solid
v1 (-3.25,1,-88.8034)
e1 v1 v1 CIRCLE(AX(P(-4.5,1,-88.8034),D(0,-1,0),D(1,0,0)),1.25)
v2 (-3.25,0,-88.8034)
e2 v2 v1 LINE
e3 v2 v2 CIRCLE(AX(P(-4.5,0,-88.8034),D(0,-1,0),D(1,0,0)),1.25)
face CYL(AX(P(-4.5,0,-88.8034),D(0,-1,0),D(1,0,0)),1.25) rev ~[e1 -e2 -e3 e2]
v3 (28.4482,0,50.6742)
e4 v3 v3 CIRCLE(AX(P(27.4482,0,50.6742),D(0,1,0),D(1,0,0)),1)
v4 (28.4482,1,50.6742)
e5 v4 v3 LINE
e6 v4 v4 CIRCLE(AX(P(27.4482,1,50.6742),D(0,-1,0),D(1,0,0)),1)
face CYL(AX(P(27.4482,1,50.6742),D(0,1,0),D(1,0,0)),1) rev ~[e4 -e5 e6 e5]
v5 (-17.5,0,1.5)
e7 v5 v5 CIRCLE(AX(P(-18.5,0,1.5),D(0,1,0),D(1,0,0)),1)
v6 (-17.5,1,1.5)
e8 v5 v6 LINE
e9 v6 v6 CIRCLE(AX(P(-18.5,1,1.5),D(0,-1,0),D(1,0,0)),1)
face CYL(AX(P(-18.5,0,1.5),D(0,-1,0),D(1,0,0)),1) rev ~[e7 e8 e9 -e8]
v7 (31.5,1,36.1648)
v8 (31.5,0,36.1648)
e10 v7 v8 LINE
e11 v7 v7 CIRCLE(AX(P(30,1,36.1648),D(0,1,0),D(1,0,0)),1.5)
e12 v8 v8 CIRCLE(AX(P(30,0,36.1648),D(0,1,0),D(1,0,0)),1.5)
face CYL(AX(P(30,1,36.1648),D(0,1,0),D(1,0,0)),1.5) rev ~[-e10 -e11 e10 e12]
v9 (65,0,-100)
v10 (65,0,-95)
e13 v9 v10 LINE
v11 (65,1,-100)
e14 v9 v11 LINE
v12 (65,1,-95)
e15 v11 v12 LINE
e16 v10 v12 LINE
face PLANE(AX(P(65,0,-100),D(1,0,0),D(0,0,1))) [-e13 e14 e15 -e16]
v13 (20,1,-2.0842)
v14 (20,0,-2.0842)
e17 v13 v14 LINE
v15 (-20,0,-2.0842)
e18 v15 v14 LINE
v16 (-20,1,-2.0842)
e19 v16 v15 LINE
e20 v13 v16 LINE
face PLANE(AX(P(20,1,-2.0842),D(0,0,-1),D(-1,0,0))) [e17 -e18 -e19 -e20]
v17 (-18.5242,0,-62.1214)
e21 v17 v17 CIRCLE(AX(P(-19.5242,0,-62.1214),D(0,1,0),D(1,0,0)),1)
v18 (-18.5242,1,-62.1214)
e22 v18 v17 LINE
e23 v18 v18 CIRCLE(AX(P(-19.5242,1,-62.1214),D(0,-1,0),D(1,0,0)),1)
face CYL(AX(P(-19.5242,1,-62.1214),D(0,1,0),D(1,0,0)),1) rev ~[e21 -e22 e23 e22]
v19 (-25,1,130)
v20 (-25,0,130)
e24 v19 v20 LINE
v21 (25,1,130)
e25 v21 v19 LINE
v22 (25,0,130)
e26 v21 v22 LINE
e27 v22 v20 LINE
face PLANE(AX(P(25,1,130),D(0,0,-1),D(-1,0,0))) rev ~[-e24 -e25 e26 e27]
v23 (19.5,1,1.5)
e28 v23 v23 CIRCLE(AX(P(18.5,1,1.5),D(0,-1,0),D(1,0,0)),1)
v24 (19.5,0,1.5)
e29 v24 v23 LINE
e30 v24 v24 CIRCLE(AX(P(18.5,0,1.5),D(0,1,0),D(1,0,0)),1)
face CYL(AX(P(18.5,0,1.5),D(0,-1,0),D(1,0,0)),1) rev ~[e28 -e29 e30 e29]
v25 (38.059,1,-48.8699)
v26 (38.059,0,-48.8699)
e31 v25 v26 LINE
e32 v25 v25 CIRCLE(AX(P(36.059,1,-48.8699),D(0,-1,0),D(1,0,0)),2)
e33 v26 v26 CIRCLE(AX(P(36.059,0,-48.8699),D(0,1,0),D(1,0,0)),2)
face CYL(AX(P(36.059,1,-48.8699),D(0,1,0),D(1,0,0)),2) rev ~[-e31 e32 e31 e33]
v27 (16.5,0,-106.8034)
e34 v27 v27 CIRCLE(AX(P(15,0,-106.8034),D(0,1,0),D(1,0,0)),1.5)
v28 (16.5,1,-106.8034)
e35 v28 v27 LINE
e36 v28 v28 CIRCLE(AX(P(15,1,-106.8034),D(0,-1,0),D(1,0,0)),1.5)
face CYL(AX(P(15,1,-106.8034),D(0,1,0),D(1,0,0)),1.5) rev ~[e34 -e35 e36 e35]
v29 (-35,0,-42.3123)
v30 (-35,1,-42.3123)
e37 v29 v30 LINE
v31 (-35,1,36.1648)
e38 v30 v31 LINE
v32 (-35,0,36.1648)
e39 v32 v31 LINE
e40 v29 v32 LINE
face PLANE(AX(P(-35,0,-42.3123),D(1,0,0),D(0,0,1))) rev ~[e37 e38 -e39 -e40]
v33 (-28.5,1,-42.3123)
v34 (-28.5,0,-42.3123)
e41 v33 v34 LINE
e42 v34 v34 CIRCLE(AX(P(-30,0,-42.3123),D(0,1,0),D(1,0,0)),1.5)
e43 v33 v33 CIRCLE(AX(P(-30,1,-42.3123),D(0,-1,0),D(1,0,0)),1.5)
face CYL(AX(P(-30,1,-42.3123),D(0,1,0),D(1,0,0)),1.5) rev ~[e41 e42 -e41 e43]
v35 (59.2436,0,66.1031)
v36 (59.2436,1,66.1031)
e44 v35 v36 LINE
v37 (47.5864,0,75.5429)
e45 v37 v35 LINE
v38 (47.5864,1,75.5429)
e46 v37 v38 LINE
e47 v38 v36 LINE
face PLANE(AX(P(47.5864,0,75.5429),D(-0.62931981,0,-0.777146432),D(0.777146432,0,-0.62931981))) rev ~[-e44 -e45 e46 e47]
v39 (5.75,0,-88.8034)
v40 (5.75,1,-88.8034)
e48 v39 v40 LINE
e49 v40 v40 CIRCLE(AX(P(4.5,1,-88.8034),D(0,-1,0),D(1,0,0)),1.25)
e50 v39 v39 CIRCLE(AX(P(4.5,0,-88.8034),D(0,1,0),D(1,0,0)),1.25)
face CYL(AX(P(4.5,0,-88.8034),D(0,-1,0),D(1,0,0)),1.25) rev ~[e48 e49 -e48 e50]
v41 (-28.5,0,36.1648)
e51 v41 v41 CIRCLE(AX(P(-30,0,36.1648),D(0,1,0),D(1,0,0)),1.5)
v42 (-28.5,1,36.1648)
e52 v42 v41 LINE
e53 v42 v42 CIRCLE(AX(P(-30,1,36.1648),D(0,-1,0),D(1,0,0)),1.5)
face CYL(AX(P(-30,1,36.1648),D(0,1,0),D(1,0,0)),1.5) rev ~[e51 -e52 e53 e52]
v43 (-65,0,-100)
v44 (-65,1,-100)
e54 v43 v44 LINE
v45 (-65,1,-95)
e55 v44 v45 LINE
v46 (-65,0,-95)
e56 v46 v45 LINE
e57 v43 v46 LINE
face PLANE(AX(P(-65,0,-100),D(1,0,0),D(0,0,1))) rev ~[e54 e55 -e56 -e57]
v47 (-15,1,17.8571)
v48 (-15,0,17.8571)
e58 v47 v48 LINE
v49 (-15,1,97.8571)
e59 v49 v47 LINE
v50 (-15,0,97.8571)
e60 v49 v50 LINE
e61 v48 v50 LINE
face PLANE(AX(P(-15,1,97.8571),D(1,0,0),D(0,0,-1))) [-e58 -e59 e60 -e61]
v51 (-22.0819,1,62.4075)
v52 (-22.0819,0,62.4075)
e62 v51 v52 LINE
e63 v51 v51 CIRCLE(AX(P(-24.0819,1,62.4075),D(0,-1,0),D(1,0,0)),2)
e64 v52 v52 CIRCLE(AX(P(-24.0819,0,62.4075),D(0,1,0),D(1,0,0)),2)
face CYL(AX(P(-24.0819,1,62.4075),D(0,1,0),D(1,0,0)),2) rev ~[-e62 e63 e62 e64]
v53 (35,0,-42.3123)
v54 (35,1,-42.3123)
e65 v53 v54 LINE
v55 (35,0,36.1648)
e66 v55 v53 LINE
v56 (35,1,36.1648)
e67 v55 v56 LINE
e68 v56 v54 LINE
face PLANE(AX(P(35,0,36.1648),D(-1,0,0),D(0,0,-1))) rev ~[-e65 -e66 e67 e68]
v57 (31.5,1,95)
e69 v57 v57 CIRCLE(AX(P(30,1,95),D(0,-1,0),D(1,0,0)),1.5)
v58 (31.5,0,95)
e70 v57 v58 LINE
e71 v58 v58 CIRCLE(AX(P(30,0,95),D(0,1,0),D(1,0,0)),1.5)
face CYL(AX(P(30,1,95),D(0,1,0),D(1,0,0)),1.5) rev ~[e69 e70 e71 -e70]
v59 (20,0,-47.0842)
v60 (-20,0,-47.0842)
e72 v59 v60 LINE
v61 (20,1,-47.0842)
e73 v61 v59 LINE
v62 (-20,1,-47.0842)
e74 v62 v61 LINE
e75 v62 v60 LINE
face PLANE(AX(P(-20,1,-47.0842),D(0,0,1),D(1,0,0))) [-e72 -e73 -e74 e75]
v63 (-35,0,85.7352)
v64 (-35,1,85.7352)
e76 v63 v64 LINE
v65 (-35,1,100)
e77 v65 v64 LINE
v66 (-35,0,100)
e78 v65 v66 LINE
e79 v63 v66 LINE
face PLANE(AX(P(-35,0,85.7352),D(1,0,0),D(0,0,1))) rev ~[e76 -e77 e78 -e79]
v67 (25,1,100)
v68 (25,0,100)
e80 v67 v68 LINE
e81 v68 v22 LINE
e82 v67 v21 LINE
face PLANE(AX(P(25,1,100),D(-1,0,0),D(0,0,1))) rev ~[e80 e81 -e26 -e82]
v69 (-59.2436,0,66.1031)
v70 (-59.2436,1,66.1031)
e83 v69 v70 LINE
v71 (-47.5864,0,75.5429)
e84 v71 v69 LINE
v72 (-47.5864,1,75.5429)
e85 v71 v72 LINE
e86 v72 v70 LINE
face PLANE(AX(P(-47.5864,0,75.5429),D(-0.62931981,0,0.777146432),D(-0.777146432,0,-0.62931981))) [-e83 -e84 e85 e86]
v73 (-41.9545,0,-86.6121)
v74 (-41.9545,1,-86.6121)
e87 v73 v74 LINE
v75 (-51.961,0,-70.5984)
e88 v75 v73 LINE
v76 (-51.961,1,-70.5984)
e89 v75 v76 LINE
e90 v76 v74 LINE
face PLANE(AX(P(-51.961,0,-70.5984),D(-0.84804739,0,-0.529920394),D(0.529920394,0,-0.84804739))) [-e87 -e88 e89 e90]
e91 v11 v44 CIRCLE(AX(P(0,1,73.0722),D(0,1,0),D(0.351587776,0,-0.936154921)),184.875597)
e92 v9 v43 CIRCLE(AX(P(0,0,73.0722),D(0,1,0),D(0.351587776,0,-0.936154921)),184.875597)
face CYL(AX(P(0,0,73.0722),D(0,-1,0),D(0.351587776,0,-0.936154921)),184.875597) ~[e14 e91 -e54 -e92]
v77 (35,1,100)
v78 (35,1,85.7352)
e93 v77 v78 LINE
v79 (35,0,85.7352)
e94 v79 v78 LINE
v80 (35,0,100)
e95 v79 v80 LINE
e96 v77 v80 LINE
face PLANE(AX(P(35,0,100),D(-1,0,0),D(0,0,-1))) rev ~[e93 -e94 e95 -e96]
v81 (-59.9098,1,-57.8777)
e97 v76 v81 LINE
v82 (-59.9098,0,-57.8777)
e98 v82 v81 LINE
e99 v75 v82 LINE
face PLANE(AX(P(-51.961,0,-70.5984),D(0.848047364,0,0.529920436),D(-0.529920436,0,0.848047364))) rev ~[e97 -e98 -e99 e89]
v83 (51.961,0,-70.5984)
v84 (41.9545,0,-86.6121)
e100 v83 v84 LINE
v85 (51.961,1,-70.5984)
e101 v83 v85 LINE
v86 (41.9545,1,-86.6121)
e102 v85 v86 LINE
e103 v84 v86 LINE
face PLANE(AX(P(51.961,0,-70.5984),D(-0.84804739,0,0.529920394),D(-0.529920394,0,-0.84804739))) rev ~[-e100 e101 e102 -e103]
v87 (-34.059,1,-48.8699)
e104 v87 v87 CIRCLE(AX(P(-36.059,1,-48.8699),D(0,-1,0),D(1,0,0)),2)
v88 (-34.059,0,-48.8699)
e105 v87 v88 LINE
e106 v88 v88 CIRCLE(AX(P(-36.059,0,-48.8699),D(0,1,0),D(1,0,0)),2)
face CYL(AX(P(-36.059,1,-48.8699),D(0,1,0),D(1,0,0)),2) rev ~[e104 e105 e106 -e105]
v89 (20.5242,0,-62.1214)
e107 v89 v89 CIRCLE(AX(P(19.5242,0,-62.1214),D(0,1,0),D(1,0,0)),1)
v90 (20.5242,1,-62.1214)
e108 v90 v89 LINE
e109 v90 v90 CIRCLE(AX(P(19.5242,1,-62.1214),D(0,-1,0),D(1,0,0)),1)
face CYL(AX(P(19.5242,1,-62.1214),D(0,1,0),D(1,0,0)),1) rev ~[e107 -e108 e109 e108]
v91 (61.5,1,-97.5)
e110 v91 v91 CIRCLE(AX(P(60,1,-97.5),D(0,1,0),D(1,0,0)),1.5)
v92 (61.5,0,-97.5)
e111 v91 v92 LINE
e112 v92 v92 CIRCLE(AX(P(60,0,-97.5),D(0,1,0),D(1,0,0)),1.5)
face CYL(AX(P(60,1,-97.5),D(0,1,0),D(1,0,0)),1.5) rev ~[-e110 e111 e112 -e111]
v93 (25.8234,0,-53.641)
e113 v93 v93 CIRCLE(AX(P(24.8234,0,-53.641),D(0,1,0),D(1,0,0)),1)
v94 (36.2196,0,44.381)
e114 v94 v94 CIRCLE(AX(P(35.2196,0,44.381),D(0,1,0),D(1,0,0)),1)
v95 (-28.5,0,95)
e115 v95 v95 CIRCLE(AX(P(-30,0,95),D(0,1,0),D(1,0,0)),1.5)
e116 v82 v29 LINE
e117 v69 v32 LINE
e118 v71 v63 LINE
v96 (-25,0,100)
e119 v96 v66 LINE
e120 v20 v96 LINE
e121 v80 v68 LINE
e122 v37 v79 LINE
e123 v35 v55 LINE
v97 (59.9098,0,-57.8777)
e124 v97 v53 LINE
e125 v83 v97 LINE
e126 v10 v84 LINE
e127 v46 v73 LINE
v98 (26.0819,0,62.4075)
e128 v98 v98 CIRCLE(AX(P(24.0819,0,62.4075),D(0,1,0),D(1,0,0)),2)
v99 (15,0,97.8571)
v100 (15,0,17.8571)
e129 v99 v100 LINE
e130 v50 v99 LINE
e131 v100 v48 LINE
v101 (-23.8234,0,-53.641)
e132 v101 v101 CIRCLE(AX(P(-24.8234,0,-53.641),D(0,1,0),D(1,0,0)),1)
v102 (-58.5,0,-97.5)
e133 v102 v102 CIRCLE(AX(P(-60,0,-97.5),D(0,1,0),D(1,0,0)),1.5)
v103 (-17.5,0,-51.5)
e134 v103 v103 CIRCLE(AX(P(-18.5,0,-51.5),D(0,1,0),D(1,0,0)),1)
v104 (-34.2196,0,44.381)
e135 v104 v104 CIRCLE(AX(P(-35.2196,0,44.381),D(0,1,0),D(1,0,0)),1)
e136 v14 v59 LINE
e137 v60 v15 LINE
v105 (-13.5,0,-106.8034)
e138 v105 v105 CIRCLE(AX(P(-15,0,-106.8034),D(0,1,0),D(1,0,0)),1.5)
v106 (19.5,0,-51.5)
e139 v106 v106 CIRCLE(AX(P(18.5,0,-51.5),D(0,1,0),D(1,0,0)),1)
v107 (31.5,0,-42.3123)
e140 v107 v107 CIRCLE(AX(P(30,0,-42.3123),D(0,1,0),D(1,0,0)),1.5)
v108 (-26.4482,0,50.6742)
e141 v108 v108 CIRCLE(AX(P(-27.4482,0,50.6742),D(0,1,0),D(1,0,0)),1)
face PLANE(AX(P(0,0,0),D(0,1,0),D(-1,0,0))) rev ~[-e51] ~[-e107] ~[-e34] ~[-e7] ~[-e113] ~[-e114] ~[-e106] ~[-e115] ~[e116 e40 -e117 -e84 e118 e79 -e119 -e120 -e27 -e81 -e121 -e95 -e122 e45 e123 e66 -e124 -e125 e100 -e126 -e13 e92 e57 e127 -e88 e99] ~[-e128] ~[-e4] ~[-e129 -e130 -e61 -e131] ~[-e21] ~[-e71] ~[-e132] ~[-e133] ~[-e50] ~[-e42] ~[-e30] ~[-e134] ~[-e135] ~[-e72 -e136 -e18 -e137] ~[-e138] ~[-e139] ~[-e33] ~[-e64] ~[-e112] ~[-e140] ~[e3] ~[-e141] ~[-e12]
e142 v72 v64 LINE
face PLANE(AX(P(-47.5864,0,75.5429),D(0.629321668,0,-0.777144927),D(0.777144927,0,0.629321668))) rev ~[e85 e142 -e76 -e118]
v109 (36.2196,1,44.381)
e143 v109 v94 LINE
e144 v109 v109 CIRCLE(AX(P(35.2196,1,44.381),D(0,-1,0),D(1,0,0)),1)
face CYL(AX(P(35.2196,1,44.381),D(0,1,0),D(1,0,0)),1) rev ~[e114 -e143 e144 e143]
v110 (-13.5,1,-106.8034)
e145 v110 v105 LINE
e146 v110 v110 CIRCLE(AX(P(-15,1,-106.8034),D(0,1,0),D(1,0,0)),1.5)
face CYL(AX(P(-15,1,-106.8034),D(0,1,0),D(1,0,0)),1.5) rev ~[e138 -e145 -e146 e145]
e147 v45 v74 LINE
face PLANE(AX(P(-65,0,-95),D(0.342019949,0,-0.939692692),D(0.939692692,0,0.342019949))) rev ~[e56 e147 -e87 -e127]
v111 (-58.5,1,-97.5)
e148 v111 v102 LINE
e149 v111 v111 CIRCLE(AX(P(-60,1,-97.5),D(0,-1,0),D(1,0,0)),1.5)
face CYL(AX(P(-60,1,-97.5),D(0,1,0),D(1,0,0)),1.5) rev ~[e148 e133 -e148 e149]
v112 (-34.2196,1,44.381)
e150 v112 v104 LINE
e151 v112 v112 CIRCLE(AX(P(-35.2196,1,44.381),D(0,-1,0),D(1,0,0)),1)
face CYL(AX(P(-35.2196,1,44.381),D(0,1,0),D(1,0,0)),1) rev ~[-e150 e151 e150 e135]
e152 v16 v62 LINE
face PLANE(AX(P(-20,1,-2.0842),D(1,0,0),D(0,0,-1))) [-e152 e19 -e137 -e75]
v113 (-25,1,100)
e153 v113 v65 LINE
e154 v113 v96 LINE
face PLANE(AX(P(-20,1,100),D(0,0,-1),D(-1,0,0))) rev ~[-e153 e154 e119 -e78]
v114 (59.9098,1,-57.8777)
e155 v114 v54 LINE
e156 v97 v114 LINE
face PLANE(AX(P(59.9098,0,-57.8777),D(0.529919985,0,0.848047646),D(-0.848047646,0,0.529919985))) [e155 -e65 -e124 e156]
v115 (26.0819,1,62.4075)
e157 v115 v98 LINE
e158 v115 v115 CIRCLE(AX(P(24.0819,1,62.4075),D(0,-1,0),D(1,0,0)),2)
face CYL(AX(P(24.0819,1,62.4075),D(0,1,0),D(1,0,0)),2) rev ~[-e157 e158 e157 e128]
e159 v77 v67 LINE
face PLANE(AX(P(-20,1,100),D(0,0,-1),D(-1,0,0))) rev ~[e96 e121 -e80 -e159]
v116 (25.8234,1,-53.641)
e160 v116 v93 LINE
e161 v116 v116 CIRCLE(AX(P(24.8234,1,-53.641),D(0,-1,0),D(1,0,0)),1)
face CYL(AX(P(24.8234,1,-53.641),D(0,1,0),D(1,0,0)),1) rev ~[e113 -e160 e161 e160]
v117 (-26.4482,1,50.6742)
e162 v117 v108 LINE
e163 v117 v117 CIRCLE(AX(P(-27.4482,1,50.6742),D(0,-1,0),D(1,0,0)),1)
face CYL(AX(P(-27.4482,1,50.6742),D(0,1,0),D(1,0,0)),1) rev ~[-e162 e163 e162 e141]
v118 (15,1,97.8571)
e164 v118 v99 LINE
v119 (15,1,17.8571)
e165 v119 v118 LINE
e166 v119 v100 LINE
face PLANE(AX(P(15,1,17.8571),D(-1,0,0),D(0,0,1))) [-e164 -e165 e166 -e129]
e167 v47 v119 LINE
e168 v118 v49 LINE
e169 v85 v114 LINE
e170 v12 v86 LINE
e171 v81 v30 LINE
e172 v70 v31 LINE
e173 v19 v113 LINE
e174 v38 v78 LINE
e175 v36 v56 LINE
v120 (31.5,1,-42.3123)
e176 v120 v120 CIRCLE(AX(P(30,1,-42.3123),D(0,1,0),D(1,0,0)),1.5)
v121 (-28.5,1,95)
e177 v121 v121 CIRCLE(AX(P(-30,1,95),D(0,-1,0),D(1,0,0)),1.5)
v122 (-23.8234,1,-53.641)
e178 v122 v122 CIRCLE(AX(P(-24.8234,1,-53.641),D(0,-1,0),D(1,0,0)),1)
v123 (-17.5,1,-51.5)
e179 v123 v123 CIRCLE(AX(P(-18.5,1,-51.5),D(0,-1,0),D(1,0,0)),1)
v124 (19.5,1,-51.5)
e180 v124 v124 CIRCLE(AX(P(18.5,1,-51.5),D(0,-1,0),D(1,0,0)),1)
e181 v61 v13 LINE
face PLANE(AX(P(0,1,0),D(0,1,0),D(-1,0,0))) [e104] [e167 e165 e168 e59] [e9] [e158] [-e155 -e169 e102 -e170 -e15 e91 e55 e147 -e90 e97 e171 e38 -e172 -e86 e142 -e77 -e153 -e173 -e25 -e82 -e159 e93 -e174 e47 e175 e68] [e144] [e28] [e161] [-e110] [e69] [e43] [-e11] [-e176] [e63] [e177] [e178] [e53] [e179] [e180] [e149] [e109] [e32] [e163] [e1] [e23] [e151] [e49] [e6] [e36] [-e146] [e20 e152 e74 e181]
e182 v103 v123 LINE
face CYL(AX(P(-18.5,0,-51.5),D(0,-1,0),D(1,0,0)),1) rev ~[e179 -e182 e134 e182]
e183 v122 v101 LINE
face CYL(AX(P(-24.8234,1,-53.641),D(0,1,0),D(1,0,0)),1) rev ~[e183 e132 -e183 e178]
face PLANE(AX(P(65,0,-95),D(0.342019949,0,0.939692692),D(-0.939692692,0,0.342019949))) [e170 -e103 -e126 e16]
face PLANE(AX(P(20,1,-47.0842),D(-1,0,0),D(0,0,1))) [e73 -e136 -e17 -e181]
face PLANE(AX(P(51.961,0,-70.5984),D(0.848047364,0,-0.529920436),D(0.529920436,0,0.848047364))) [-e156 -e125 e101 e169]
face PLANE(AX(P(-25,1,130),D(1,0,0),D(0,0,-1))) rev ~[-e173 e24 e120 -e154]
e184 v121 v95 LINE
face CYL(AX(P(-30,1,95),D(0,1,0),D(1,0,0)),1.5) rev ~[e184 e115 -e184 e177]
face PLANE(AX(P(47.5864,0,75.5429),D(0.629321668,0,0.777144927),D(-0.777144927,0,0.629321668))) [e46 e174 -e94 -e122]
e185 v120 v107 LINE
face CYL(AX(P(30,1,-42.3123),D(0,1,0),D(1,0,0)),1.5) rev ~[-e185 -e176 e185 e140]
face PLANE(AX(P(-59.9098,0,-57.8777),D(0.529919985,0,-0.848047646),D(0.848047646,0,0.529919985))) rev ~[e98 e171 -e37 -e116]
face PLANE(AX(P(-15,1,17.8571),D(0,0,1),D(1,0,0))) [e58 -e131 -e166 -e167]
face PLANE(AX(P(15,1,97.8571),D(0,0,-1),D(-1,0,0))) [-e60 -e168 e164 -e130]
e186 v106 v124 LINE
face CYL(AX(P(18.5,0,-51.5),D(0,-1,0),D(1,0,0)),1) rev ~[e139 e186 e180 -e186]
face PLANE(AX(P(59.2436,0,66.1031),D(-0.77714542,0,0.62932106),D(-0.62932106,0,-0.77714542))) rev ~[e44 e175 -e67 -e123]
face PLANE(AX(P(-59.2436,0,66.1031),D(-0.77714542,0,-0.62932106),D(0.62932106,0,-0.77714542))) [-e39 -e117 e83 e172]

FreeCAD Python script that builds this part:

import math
import FreeCAD as App
import Part
import Sketcher

V = App.Vector
Q = App.Units.Quantity


def add_polygon(sketch, points):
    """Adds a closed chain of lines whose ends are joined by coincident constraints."""
    first, n = sketch.GeometryCount, len(points)
    for a, b in zip(points, points[1:] + points[:1]):
        sketch.addGeometry(Part.LineSegment(App.Vector(*a, 0), App.Vector(*b, 0)), False)
    for i in range(n):
        sketch.addConstraint(Sketcher.Constraint("Coincident", first + i, 2, first + (i + 1) % n, 1))

doc = App.newDocument("Part")
body = doc.addObject("PartDesign::Body", "Body")

# Sketch on XZ plane
sketch1 = body.newObject("Sketcher::SketchObject", "Sketch")
sketch1.AttachmentSupport = (doc.getObject("XZ_Plane"), [""])
sketch1.MapMode = "FlatFace"
sketch1.addGeometry([
    Part.LineSegment(V(-35, 86, 0), V(-35, 135, 0)),  # 0
    Part.LineSegment(V(-35, 135, 0), V(-20, 135, 0)),  # 1
    Part.LineSegment(V(-20, 135, 0), V(-20, 100, 0)),  # 2
    Part.LineSegment(V(-20, 100, 0), V(20, 100, 0)),  # 3
    Part.LineSegment(V(20, 100, 0), V(20, 135, 0)),  # 4
    Part.LineSegment(V(20, 135, 0), V(35, 135, 0)),  # 5
    Part.LineSegment(V(35, 135, 0), V(35, 86, 0)),  # 6
    Part.LineSegment(V(35, 86, 0), V(48, 76, 0)),  # 7
    Part.LineSegment(V(48, 76, 0), V(59, 66, 0)),  # 8
    Part.LineSegment(V(59, 66, 0), V(35, 36, 0)),  # 9
    Part.LineSegment(V(35, 36, 0), V(35, -42, 0)),  # 10
    Part.LineSegment(V(35, -42, 0), V(60, -58, 0)),  # 11
    Part.LineSegment(V(60, -58, 0), V(52, -71, 0)),  # 12
    Part.LineSegment(V(52, -71, 0), V(42, -87, 0)),  # 13
    Part.LineSegment(V(42, -87, 0), V(65, -95, 0)),  # 14
    Part.LineSegment(V(65, -95, 0), V(65, -100, 0)),  # 15
    Part.ArcOfCircle(Part.Circle(V(0, 73, 0), V(0, 0, 1), 185), math.radians(-111), math.radians(-69)),  # 16
    Part.LineSegment(V(-65, -100, 0), V(-65, -95, 0)),  # 17
    Part.LineSegment(V(-65, -95, 0), V(-42, -87, 0)),  # 18
    Part.LineSegment(V(-42, -87, 0), V(-52, -71, 0)),  # 19
    Part.LineSegment(V(-52, -71, 0), V(-60, -58, 0)),  # 20
    Part.LineSegment(V(-60, -58, 0), V(-35, -42, 0)),  # 21
    Part.LineSegment(V(-35, -42, 0), V(-35, 36, 0)),  # 22
    Part.LineSegment(V(-35, 36, 0), V(-59, 66, 0)),  # 23
    Part.LineSegment(V(-59, 66, 0), V(-48, 76, 0)),  # 24
    Part.LineSegment(V(-48, 76, 0), V(-35, 86, 0)),  # 25
], False)
sketch1.addConstraint([
    Sketcher.Constraint("Coincident", 0, 2, 1, 1),
    Sketcher.Constraint("Coincident", 1, 2, 2, 1),
    Sketcher.Constraint("Coincident", 2, 2, 3, 1),
    Sketcher.Constraint("Coincident", 3, 2, 4, 1),
    Sketcher.Constraint("Coincident", 4, 2, 5, 1),
    Sketcher.Constraint("Coincident", 5, 2, 6, 1),
    Sketcher.Constraint("Coincident", 6, 2, 7, 1),
    Sketcher.Constraint("Coincident", 7, 2, 8, 1),
    Sketcher.Constraint("Coincident", 8, 2, 9, 1),
    Sketcher.Constraint("Coincident", 9, 2, 10, 1),
    Sketcher.Constraint("Coincident", 10, 2, 11, 1),
    Sketcher.Constraint("Coincident", 11, 2, 12, 1),
    Sketcher.Constraint("Coincident", 12, 2, 13, 1),
    Sketcher.Constraint("Coincident", 13, 2, 14, 1),
    Sketcher.Constraint("Coincident", 14, 2, 15, 1),
    Sketcher.Constraint("Coincident", 15, 2, 16, 2),
    Sketcher.Constraint("Coincident", 16, 1, 17, 1),
    Sketcher.Constraint("Coincident", 17, 2, 18, 1),
    Sketcher.Constraint("Coincident", 18, 2, 19, 1),
    Sketcher.Constraint("Coincident", 19, 2, 20, 1),
    Sketcher.Constraint("Coincident", 20, 2, 21, 1),
    Sketcher.Constraint("Coincident", 21, 2, 22, 1),
    Sketcher.Constraint("Coincident", 22, 2, 23, 1),
    Sketcher.Constraint("Coincident", 23, 2, 24, 1),
    Sketcher.Constraint("Coincident", 24, 2, 25, 1),
    Sketcher.Constraint("Coincident", 25, 2, 0, 1),
    Sketcher.Constraint("Vertical", 0),
    Sketcher.Constraint("Horizontal", 1),
    Sketcher.Constraint("Vertical", 2),
    Sketcher.Constraint("Horizontal", 3),
    Sketcher.Constraint("Vertical", 4),
    Sketcher.Constraint("Horizontal", 5),
    Sketcher.Constraint("Vertical", 6),
    Sketcher.Constraint("Vertical", 10),
    Sketcher.Constraint("Vertical", 15),
    Sketcher.Constraint("Vertical", 17),
    Sketcher.Constraint("Vertical", 22),
    Sketcher.Constraint("Symmetric", 1, 2, 4, 2, -2),
    Sketcher.Constraint("Symmetric", 15, 2, 16, 1, -2),
    Sketcher.Constraint("Symmetric", 13, 2, 18, 2, -2),
    Sketcher.Constraint("Symmetric", 12, 2, 19, 2, -2),
    Sketcher.Constraint("Symmetric", 11, 2, 20, 2, -2),
    Sketcher.Constraint("Symmetric", 10, 2, 21, 2, -2),
    Sketcher.Constraint("Symmetric", 8, 2, 23, 2, -2),
    Sketcher.Constraint("Symmetric", 7, 2, 24, 2, -2),
    Sketcher.Constraint("Symmetric", 6, 2, 25, 2, -2),
    Sketcher.Constraint("Parallel", 7, 8),
    Sketcher.Constraint("Perpendicular", 8, 9),
    Sketcher.Constraint("Perpendicular", 11, 12),
    Sketcher.Constraint("Parallel", 12, 13),
    Sketcher.Constraint("Perpendicular", 23, 24),
    Sketcher.Constraint("Horizontal", 14, 2, 17, 2),
    Sketcher.Constraint("Vertical", 6, 2, 9, 2),
    Sketcher.Constraint("Equal", 8, 12),
    Sketcher.Constraint("DistanceX", 1, 1, 1, 2, Q("15 mm")),
    Sketcher.Constraint("DistanceX", 3, 1, 3, 2, Q("40 mm")),
    Sketcher.Constraint("DistanceY", 2, 2, 2, 1, Q("35 mm")),
    Sketcher.Constraint("DistanceY", 15, 2, 15, 1, Q("5 mm")),
    Sketcher.Constraint("Angle", 7, Q("-39 deg")),
    Sketcher.Constraint("Angle", 11, Q("-32 deg")),
    Sketcher.Constraint("Angle", 14, Q("-20 deg")),
    Sketcher.Constraint("Distance", 8, Q("15 mm")),
    Sketcher.Constraint("DistanceX", 10, 2, 14, 2, Q("30 mm")),
    Sketcher.Constraint("DistanceY", -1, 1, 0, 2, Q("135 mm")),
    Sketcher.Constraint("DistanceY", 14, 2, -1, 1, Q("95 mm")),
    Sketcher.Constraint("Radius", 16, Q("184.8756 mm")),
    Sketcher.Constraint("DistanceY", 10, 2, 10, 1, Q("78.477 mm")),
    Sketcher.Constraint("DistanceY", 11, 2, 16, 3, Q("130.95 mm")),
    Sketcher.Constraint("Distance", 11, Q("29.373 mm")),
    Sketcher.Constraint("DistanceY", 0, 1, 0, 2, Q("49.2648 mm")),
])
pad1 = body.newObject("PartDesign::Pad", "Pad")
pad1.Profile = sketch1
pad1.Length = 1
pad1.Reversed = True

# Sketch on XZ plane
sketch2 = body.newObject("Sketcher::SketchObject", "Sketch001")
sketch2.AttachmentSupport = (doc.getObject("XZ_Plane"), [""])
sketch2.MapMode = "FlatFace"
sketch2.AttachmentOffset = App.Placement(V(0, 0, -1), App.Rotation())
sketch2.addGeometry([
    Part.Circle(V(-36.1, -48.9, 0), V(0, 0, 1), 2),
    Part.Circle(V(36.1, -48.9, 0), V(0, 0, 1), 2),
    Part.Circle(V(24.1, 62.4, 0), V(0, 0, 1), 2),
    Part.Circle(V(-24.1, 62.4, 0), V(0, 0, 1), 2),
], False)
sketch2.addConstraint([
    Sketcher.Constraint("Equal", 0, 1),
    Sketcher.Constraint("Equal", 1, 2),
    Sketcher.Constraint("Equal", 2, 3),
    Sketcher.Constraint("Symmetric", 0, 3, 1, 3, -2),
    Sketcher.Constraint("Symmetric", 2, 3, 3, 3, -2),
    Sketcher.Constraint("Diameter", 0, Q("4 mm")),
    Sketcher.Constraint("DistanceY", 0, 3, -1, 1, Q("48.87 mm")),
    Sketcher.Constraint("DistanceX", 0, 3, -1, 1, Q("36.059 mm")),
    Sketcher.Constraint("DistanceX", -1, 1, 2, 3, Q("24.082 mm")),
    Sketcher.Constraint("DistanceY", -1, 1, 2, 3, Q("62.4075 mm")),
])
pocket1 = body.newObject("PartDesign::Pocket", "Pocket")
pocket1.Profile = sketch2
pocket1.Type = "UpToFirst"
pocket1.Reversed = True

# Sketch on XZ plane
sketch3 = body.newObject("Sketcher::SketchObject", "Sketch002")
sketch3.AttachmentSupport = (doc.getObject("XZ_Plane"), [""])
sketch3.MapMode = "FlatFace"
sketch3.AttachmentOffset = App.Placement(V(0, 0, -1), App.Rotation())
sketch3.addGeometry([
    Part.Circle(V(35.2, 44.4, 0), V(0, 0, 1), 1),
    Part.Circle(V(27.4, 50.7, 0), V(0, 0, 1), 1),
], False)
sketch3.addConstraint([
    Sketcher.Constraint("Equal", 0, 1),
    Sketcher.Constraint("Diameter", 0, Q("2 mm")),
    Sketcher.Constraint("DistanceY", -1, 1, 0, 3, Q("44.381 mm")),
    Sketcher.Constraint("DistanceX", -1, 1, 0, 3, Q("35.2196 mm")),
    Sketcher.Constraint("DistanceX", -1, 1, 1, 3, Q("27.4482 mm")),
    Sketcher.Constraint("DistanceY", -1, 1, 1, 3, Q("50.6742 mm")),
])
pocket2 = body.newObject("PartDesign::Pocket", "Pocket001")
pocket2.Profile = sketch3
pocket2.Type = "UpToFirst"
pocket2.Reversed = True

# Sketch on XZ plane
sketch4 = body.newObject("Sketcher::SketchObject", "Sketch003")
sketch4.AttachmentSupport = (doc.getObject("XZ_Plane"), [""])
sketch4.MapMode = "FlatFace"
sketch4.AttachmentOffset = App.Placement(V(0, 0, -1), App.Rotation())
sketch4.addGeometry([
    Part.Circle(V(-35.2, 44.4, 0), V(0, 0, 1), 1),
    Part.Circle(V(-27.4, 50.7, 0), V(0, 0, 1), 1),
], False)
sketch4.addConstraint([
    Sketcher.Constraint("Equal", 0, 1),
    Sketcher.Constraint("Diameter", 0, Q("2 mm")),
    Sketcher.Constraint("DistanceY", -1, 1, 0, 3, Q("44.381 mm")),
    Sketcher.Constraint("DistanceX", 0, 3, -1, 1, Q("35.2196 mm")),
    Sketcher.Constraint("DistanceX", 1, 3, -1, 1, Q("27.4482 mm")),
    Sketcher.Constraint("DistanceY", -1, 1, 1, 3, Q("50.6742 mm")),
])
pocket3 = body.newObject("PartDesign::Pocket", "Pocket002")
pocket3.Profile = sketch4
pocket3.Type = "UpToFirst"
pocket3.Reversed = True

# Sketch on XZ plane
sketch5 = body.newObject("Sketcher::SketchObject", "Sketch004")
sketch5.AttachmentSupport = (doc.getObject("XZ_Plane"), [""])
sketch5.MapMode = "FlatFace"
sketch5.AttachmentOffset = App.Placement(V(0, 0, -1), App.Rotation())
sketch5.addGeometry([
    Part.Circle(V(19.5, -62.1, 0), V(0, 0, 1), 1),
    Part.Circle(V(24.8, -53.6, 0), V(0, 0, 1), 1),
], False)
sketch5.addConstraint([
    Sketcher.Constraint("Equal", 0, 1),
    Sketcher.Constraint("Diameter", 0, Q("2 mm")),
    Sketcher.Constraint("DistanceY", 1, 3, -1, 1, Q("53.641 mm")),
    Sketcher.Constraint("DistanceX", -1, 1, 0, 3, Q("19.5242 mm")),
    Sketcher.Constraint("DistanceY", 0, 3, -1, 1, Q("62.1214 mm")),
    Sketcher.Constraint("DistanceX", -1, 1, 1, 3, Q("24.8234 mm")),
])
pocket4 = body.newObject("PartDesign::Pocket", "Pocket003")
pocket4.Profile = sketch5
pocket4.Type = "UpToFirst"
pocket4.Reversed = True

# Sketch on XZ plane
sketch6 = body.newObject("Sketcher::SketchObject", "Sketch005")
sketch6.AttachmentSupport = (doc.getObject("XZ_Plane"), [""])
sketch6.MapMode = "FlatFace"
sketch6.AttachmentOffset = App.Placement(V(0, 0, -1), App.Rotation())
sketch6.addGeometry([
    Part.Circle(V(-19.5, -62.1, 0), V(0, 0, 1), 1),
    Part.Circle(V(-24.8, -53.6, 0), V(0, 0, 1), 1),
], False)
sketch6.addConstraint([
    Sketcher.Constraint("Equal", 0, 1),
    Sketcher.Constraint("Diameter", 0, Q("2 mm")),
    Sketcher.Constraint("DistanceY", 1, 3, -1, 1, Q("53.641 mm")),
    Sketcher.Constraint("DistanceX", 0, 3, -1, 1, Q("19.5242 mm")),
    Sketcher.Constraint("DistanceY", 0, 3, -1, 1, Q("62.1214 mm")),
    Sketcher.Constraint("DistanceX", 1, 3, -1, 1, Q("24.8234 mm")),
])
pocket5 = body.newObject("PartDesign::Pocket", "Pocket004")
pocket5.Profile = sketch6
pocket5.Type = "UpToFirst"
pocket5.Reversed = True

# Sketch on XZ plane
sketch7 = body.newObject("Sketcher::SketchObject", "Sketch006")
sketch7.AttachmentSupport = (doc.getObject("XZ_Plane"), [""])
sketch7.MapMode = "FlatFace"
sketch7.AttachmentOffset = App.Placement(V(0, 0, -1), App.Rotation())
sketch7.addGeometry([
    Part.Circle(V(-30, -42.3, 0), V(0, 0, 1), 1.5),
    Part.Circle(V(30, -42.3, 0), V(0, 0, 1), 1.5),
], False)
sketch7.addConstraint([
    Sketcher.Constraint("Equal", 0, 1),
    Sketcher.Constraint("Symmetric", 0, 3, 1, 3, -2),
    Sketcher.Constraint("Diameter", 0, Q("3 mm")),
    Sketcher.Constraint("DistanceX", 0, 3, -1, 1, Q("30 mm")),
    Sketcher.Constraint("DistanceY", 0, 3, -1, 1, Q("42.3123 mm")),
])
pocket6 = body.newObject("PartDesign::Pocket", "Pocket005")
pocket6.Profile = sketch7
pocket6.Type = "ThroughAll"
pocket6.Reversed = True

# Sketch on XZ plane
sketch8 = body.newObject("Sketcher::SketchObject", "Sketch007")
sketch8.AttachmentSupport = (doc.getObject("XZ_Plane"), [""])
sketch8.MapMode = "FlatFace"
sketch8.AttachmentOffset = App.Placement(V(0, 0, -1), App.Rotation())
sketch8.addGeometry([
    Part.Circle(V(15, -106.8, 0), V(0, 0, 1), 1.5),
    Part.Circle(V(-15, -106.8, 0), V(0, 0, 1), 1.5),
    Part.Circle(V(-60, -97.5, 0), V(0, 0, 1), 1.5),
    Part.Circle(V(60, -97.5, 0), V(0, 0, 1), 1.5),
], False)
sketch8.addConstraint([
    Sketcher.Constraint("Equal", 0, 1),
    Sketcher.Constraint("Equal", 1, 2),
    Sketcher.Constraint("Equal", 2, 3),
    Sketcher.Constraint("Symmetric", 0, 3, 1, 3, -2),
    Sketcher.Constraint("Symmetric", 2, 3, 3, 3, -2),
    Sketcher.Constraint("Diameter", 0, Q("3 mm")),
    Sketcher.Constraint("DistanceX", -1, 1, 0, 3, Q("15 mm")),
    Sketcher.Constraint("DistanceX", 2, 3, -1, 1, Q("60 mm")),
    Sketcher.Constraint("DistanceY", 2, 3, -1, 1, Q("97.5 mm")),
    Sketcher.Constraint("DistanceY", 0, 3, -1, 1, Q("106.8034 mm")),
])
pocket7 = body.newObject("PartDesign::Pocket", "Pocket006")
pocket7.Profile = sketch8
pocket7.Type = "ThroughAll"
pocket7.Reversed = True

# Sketch on XZ plane
sketch9 = body.newObject("Sketcher::SketchObject", "Sketch008")
sketch9.AttachmentSupport = (doc.getObject("XZ_Plane"), [""])
sketch9.MapMode = "FlatFace"
sketch9.AttachmentOffset = App.Placement(V(0, 0, -1), App.Rotation())
add_polygon(sketch9, [(-35, 100), (-35, 135), (-20, 135), (-20, 100)])  # lines 0-3
add_polygon(sketch9, [(35, 100), (20, 100), (20, 135), (35, 135)])  # lines 4-7
sketch9.addConstraint([
    Sketcher.Constraint("Vertical", 0),
    Sketcher.Constraint("Horizontal", 1),
    Sketcher.Constraint("Vertical", 2),
    Sketcher.Constraint("Horizontal", 3),
    Sketcher.Constraint("Horizontal", 4),
    Sketcher.Constraint("Vertical", 5),
    Sketcher.Constraint("Horizontal", 6),
    Sketcher.Constraint("Vertical", 7),
    Sketcher.Constraint("Symmetric", 2, 2, 4, 2, -2),
    Sketcher.Constraint("Symmetric", 0, 2, 6, 2, -2),
    Sketcher.Constraint("DistanceX", 1, 1, 1, 2, Q("15 mm")),
    Sketcher.Constraint("DistanceY", 0, 1, 0, 2, Q("35 mm")),
    Sketcher.Constraint("DistanceX", 0, 2, -1, 1, Q("35 mm")),
    Sketcher.Constraint("DistanceY", -1, 1, 0, 2, Q("135 mm")),
])
pocket8 = body.newObject("PartDesign::Pocket", "Pocket007")
pocket8.Profile = sketch9
pocket8.Length = 1
pocket8.Reversed = True

# Sketch on XZ plane
sketch10 = body.newObject("Sketcher::SketchObject", "Sketch009")
sketch10.AttachmentSupport = (doc.getObject("XZ_Plane"), [""])
sketch10.MapMode = "FlatFace"
sketch10.AttachmentOffset = App.Placement(V(0, 0, -1), App.Rotation())
sketch10.addGeometry([
    Part.Circle(V(30, 95, 0), V(0, 0, 1), 1.5),
    Part.Circle(V(-30, 95, 0), V(0, 0, 1), 1.5),
    Part.Circle(V(30, 36.2, 0), V(0, 0, 1), 1.5),
    Part.Circle(V(-30, 36.2, 0), V(0, 0, 1), 1.5),
], False)
sketch10.addConstraint([
    Sketcher.Constraint("Equal", 0, 1),
    Sketcher.Constraint("Equal", 1, 2),
    Sketcher.Constraint("Equal", 2, 3),
    Sketcher.Constraint("Symmetric", 0, 3, 1, 3, -2),
    Sketcher.Constraint("Symmetric", 2, 3, 3, 3, -2),
    Sketcher.Constraint("Vertical", 0, 3, 2, 3),
    Sketcher.Constraint("Diameter", 0, Q("3 mm")),
    Sketcher.Constraint("DistanceX", -1, 1, 0, 3, Q("30 mm")),
    Sketcher.Constraint("DistanceY", -1, 1, 0, 3, Q("95 mm")),
    Sketcher.Constraint("DistanceY", -1, 1, 2, 3, Q("36.1648 mm")),
])
pocket9 = body.newObject("PartDesign::Pocket", "Pocket008")
pocket9.Profile = sketch10
pocket9.Type = "ThroughAll"
pocket9.Reversed = True

# Sketch on XZ plane
sketch11 = body.newObject("Sketcher::SketchObject", "Sketch010")
sketch11.AttachmentSupport = (doc.getObject("XZ_Plane"), [""])
sketch11.MapMode = "FlatFace"
sketch11.addGeometry([
    Part.Circle(V(-18.5, 1.5, 0), V(0, 0, 1), 1),
    Part.Circle(V(18.5, 1.5, 0), V(0, 0, 1), 1),
    Part.Circle(V(-18.5, -51.5, 0), V(0, 0, 1), 1),
    Part.Circle(V(18.5, -51.5, 0), V(0, 0, 1), 1),
], False)
sketch11.addConstraint([
    Sketcher.Constraint("Equal", 0, 1),
    Sketcher.Constraint("Equal", 1, 2),
    Sketcher.Constraint("Equal", 2, 3),
    Sketcher.Constraint("Symmetric", 0, 3, 1, 3, -2),
    Sketcher.Constraint("Symmetric", 2, 3, 3, 3, -2),
    Sketcher.Constraint("Vertical", 0, 3, 2, 3),
    Sketcher.Constraint("Diameter", 0, Q("2 mm")),
    Sketcher.Constraint("DistanceX", 0, 3, 1, 3, Q("37 mm")),
    Sketcher.Constraint("DistanceY", 2, 3, 0, 3, Q("53 mm")),
    Sketcher.Constraint("DistanceY", -1, 1, 0, 3, Q("1.5 mm")),
])
pocket10 = body.newObject("PartDesign::Pocket", "Pocket009")
pocket10.Profile = sketch11
pocket10.Length = 1

# Sketch on XZ plane
sketch12 = body.newObject("Sketcher::SketchObject", "Sketch011")
sketch12.AttachmentSupport = (doc.getObject("XZ_Plane"), [""])
sketch12.MapMode = "FlatFace"
sketch12.addGeometry([
    Part.Circle(V(4.5, -88.8, 0), V(0, 0, 1), 1.2),
    Part.Circle(V(-4.5, -88.8, 0), V(0, 0, 1), 1.2),
], False)
sketch12.addConstraint([
    Sketcher.Constraint("Equal", 0, 1),
    Sketcher.Constraint("Symmetric", 0, 3, 1, 3, -2),
    Sketcher.Constraint("Diameter", 0, Q("2.5 mm")),
    Sketcher.Constraint("DistanceX", -1, 1, 0, 3, Q("4.5 mm")),
    Sketcher.Constraint("DistanceY", 0, 3, -1, 1, Q("88.8034 mm")),
])
pocket11 = body.newObject("PartDesign::Pocket", "Pocket010")
pocket11.Profile = sketch12
pocket11.Type = "UpToFirst"

# Sketch on XZ plane
sketch13 = body.newObject("Sketcher::SketchObject", "Sketch012")
sketch13.AttachmentSupport = (doc.getObject("XZ_Plane"), [""])
sketch13.MapMode = "FlatFace"
sketch13.AttachmentOffset = App.Placement(V(0, 0, -1), App.Rotation())
add_polygon(sketch13, [(25, 130), (25, 100), (-25, 100), (-25, 130)])  # lines 0-3
sketch13.addConstraint([
    Sketcher.Constraint("Vertical", 0),
    Sketcher.Constraint("Horizontal", 1),
    Sketcher.Constraint("Vertical", 2),
    Sketcher.Constraint("Horizontal", 3),
    Sketcher.Constraint("DistanceX", 1, 2, 1, 1, Q("50 mm")),
    Sketcher.Constraint("DistanceY", 0, 2, 0, 1, Q("30 mm")),
    Sketcher.Constraint("DistanceX", -1, 1, 0, 2, Q("25 mm")),
    Sketcher.Constraint("DistanceY", -1, 1, 0, 2, Q("100 mm")),
])
pad2 = body.newObject("PartDesign::Pad", "Pad001")
pad2.Profile = sketch13
pad2.Length = 1

# Sketch on XZ plane
sketch14 = body.newObject("Sketcher::SketchObject", "Sketch013")
sketch14.AttachmentSupport = (doc.getObject("XZ_Plane"), [""])
sketch14.MapMode = "FlatFace"
sketch14.AttachmentOffset = App.Placement(V(0, 0, -1), App.Rotation())
add_polygon(sketch14, [(20, -47), (-20, -47), (-20, -2), (20, -2)])  # lines 0-3
add_polygon(sketch14, [(15, 18), (-15, 18), (-15, 98), (15, 98)])  # lines 4-7
sketch14.addConstraint([
    Sketcher.Constraint("Horizontal", 0),
    Sketcher.Constraint("Vertical", 1),
    Sketcher.Constraint("Horizontal", 2),
    Sketcher.Constraint("Vertical", 3),
    Sketcher.Constraint("Horizontal", 4),
    Sketcher.Constraint("Vertical", 5),
    Sketcher.Constraint("Horizontal", 6),
    Sketcher.Constraint("Vertical", 7),
    Sketcher.Constraint("DistanceX", 0, 2, 0, 1, Q("40 mm")),
    Sketcher.Constraint("DistanceX", 4, 2, 4, 1, Q("30 mm")),
    Sketcher.Constraint("DistanceY", 1, 1, 1, 2, Q("45 mm")),
    Sketcher.Constraint("DistanceY", 5, 1, 5, 2, Q("80 mm")),
    Sketcher.Constraint("DistanceX", 0, 2, -1, 1, Q("20 mm")),
    Sketcher.Constraint("DistanceX", 4, 2, -1, 1, Q("15 mm")),
    Sketcher.Constraint("DistanceY", -1, 1, 4, 2, Q("17.857 mm")),
    Sketcher.Constraint("DistanceY", 0, 2, -1, 1, Q("47.0842 mm")),
])
pocket12 = body.newObject("PartDesign::Pocket", "Pocket011")
pocket12.Profile = sketch14
pocket12.Type = "UpToFirst"
pocket12.Reversed = True

doc.recompute()
